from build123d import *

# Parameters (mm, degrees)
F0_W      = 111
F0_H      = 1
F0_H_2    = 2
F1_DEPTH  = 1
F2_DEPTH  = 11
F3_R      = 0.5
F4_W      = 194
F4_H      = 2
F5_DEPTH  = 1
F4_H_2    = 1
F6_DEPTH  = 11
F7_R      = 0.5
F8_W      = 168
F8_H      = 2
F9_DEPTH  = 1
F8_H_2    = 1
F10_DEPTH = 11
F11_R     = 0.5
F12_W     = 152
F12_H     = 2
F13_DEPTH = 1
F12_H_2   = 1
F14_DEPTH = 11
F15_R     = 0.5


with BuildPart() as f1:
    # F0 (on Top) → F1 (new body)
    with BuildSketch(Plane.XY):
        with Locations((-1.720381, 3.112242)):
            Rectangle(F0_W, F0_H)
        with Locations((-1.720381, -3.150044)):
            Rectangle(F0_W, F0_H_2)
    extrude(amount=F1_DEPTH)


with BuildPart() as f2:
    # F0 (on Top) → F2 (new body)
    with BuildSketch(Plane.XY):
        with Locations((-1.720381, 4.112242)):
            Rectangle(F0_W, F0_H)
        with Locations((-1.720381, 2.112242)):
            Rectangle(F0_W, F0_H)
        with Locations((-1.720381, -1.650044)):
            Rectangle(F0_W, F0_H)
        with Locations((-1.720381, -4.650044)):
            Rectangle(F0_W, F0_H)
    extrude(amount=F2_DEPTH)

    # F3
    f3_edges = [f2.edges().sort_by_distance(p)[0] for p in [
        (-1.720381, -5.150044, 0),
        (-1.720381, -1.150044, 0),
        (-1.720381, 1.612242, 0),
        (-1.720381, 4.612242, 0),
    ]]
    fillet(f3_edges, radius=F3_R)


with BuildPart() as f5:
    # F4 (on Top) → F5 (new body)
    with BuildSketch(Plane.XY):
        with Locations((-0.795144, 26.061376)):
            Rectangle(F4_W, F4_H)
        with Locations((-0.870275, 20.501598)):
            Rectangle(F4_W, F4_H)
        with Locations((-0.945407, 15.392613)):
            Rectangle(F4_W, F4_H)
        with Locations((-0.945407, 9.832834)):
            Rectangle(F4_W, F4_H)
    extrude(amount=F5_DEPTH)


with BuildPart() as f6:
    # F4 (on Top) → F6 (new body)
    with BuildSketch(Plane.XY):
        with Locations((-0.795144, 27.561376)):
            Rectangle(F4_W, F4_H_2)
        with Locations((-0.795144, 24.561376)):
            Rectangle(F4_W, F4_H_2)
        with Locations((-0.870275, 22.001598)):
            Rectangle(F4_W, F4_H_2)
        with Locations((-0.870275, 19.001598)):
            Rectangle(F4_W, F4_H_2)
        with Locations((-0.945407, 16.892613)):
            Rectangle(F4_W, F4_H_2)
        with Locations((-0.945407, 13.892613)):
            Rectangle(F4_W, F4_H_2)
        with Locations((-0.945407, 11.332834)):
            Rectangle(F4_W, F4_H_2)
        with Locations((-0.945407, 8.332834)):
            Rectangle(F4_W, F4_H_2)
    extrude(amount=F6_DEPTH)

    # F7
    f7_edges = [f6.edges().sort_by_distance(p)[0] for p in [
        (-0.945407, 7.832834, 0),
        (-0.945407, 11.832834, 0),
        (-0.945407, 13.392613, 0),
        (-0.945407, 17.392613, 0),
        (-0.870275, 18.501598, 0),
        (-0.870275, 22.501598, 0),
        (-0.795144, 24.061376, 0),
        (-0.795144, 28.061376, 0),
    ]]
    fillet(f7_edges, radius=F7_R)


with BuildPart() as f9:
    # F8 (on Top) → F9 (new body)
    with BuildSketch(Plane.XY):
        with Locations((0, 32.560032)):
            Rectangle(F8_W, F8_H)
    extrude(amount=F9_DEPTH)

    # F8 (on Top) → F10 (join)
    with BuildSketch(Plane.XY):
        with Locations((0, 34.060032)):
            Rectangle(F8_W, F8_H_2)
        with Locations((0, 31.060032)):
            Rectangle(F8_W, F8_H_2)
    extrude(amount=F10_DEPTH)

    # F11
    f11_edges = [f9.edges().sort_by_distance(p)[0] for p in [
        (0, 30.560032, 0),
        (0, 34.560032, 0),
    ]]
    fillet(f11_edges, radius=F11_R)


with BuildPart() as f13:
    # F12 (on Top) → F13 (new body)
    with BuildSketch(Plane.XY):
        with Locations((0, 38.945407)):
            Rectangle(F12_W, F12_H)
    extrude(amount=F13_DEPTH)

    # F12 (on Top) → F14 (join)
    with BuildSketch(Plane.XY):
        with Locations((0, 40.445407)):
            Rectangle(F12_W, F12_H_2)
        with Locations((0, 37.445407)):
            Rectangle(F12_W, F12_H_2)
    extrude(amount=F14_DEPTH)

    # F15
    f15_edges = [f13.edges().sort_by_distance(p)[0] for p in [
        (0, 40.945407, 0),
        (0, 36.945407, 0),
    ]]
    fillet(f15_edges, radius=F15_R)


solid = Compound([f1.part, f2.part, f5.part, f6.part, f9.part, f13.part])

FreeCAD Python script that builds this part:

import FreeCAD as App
import Part
import Sketcher


def edges_at(feature, points):
    """Names of the edges that pass closest to the given points."""
    edges = feature.Shape.Edges
    near = lambda p: min(range(len(edges)), key=lambda i: edges[i].distToShape(Part.Vertex(*p))[0])
    return sorted({f"Edge{near(p) + 1}" for p in points})

doc = App.newDocument("Part")
body = doc.addObject("PartDesign::Body", "Body")
body.AllowCompound = True

# Sketch on XY plane
sketch1 = body.newObject("Sketcher::SketchObject", "Sketch")
sketch1.AttachmentSupport = (doc.getObject("XY_Plane"), [""])
sketch1.MapMode = "FlatFace"
sketch1.addGeometry(Part.LineSegment(App.Vector(-57.2, 3.6, 0), App.Vector(-57.2, 2.6, 0)), False)
sketch1.addGeometry(Part.LineSegment(App.Vector(-57.2, 2.6, 0), App.Vector(53.8, 2.6, 0)), False)
sketch1.addGeometry(Part.LineSegment(App.Vector(53.8, 2.6, 0), App.Vector(53.8, 3.6, 0)), False)
sketch1.addGeometry(Part.LineSegment(App.Vector(53.8, 3.6, 0), App.Vector(-57.2, 3.6, 0)), False)
sketch1.addGeometry(Part.LineSegment(App.Vector(-57.2, -2.2, 0), App.Vector(-57.2, -4.2, 0)), False)
sketch1.addGeometry(Part.LineSegment(App.Vector(-57.2, -4.2, 0), App.Vector(53.8, -4.2, 0)), False)
sketch1.addGeometry(Part.LineSegment(App.Vector(53.8, -4.2, 0), App.Vector(53.8, -2.2, 0)), False)
sketch1.addGeometry(Part.LineSegment(App.Vector(53.8, -2.2, 0), App.Vector(-57.2, -2.2, 0)), False)
sketch1.addConstraint(Sketcher.Constraint("Coincident", 0, 2, 1, 1))
sketch1.addConstraint(Sketcher.Constraint("Coincident", 1, 2, 2, 1))
sketch1.addConstraint(Sketcher.Constraint("Coincident", 2, 2, 3, 1))
sketch1.addConstraint(Sketcher.Constraint("Coincident", 3, 2, 0, 1))
sketch1.addConstraint(Sketcher.Constraint("Coincident", 4, 2, 5, 1))
sketch1.addConstraint(Sketcher.Constraint("Coincident", 5, 2, 6, 1))
sketch1.addConstraint(Sketcher.Constraint("Coincident", 6, 2, 7, 1))
sketch1.addConstraint(Sketcher.Constraint("Coincident", 7, 2, 4, 1))
sketch1.addConstraint(Sketcher.Constraint("Vertical", 0))
sketch1.addConstraint(Sketcher.Constraint("Horizontal", 1))
sketch1.addConstraint(Sketcher.Constraint("Vertical", 2))
sketch1.addConstraint(Sketcher.Constraint("Horizontal", 3))
sketch1.addConstraint(Sketcher.Constraint("Vertical", 4))
sketch1.addConstraint(Sketcher.Constraint("Horizontal", 5))
sketch1.addConstraint(Sketcher.Constraint("Vertical", 6))
sketch1.addConstraint(Sketcher.Constraint("Horizontal", 7))
sketch1.addConstraint(Sketcher.Constraint("Vertical", 3, 2, 4, 2))
sketch1.addConstraint(Sketcher.Constraint("Vertical", 2, 2, 5, 2))
sketch1.addConstraint(Sketcher.Constraint("DistanceX", 1, 1, 1, 2, 111.0))
sketch1.addConstraint(Sketcher.Constraint("DistanceY", 0, 2, 0, 1, 1.0))
sketch1.addConstraint(Sketcher.Constraint("DistanceY", 4, 2, 4, 1, 2.0))
sketch1.addConstraint(Sketcher.Constraint("DistanceX", 0, 2, -1, 1, 57.220381))
sketch1.addConstraint(Sketcher.Constraint("DistanceY", -1, 1, 0, 2, 2.612242))
sketch1.addConstraint(Sketcher.Constraint("DistanceY", 4, 2, -1, 1, 4.150044))
pad1 = body.newObject("PartDesign::Pad", "Pad")
pad1.Profile = sketch1
pad1.Length = 1
body2 = doc.addObject("PartDesign::Body", "Body001")
body2.AllowCompound = True

# Sketch on XY plane
sketch2 = body2.newObject("Sketcher::SketchObject", "Sketch001")
sketch2.AttachmentSupport = (doc.getObject("XY_Plane001"), [""])
sketch2.MapMode = "FlatFace"
sketch2.addGeometry(Part.LineSegment(App.Vector(-57.2, 4.6, 0), App.Vector(-57.2, 3.6, 0)), False)
sketch2.addGeometry(Part.LineSegment(App.Vector(-57.2, 3.6, 0), App.Vector(53.8, 3.6, 0)), False)
sketch2.addGeometry(Part.LineSegment(App.Vector(53.8, 3.6, 0), App.Vector(53.8, 4.6, 0)), False)
sketch2.addGeometry(Part.LineSegment(App.Vector(53.8, 4.6, 0), App.Vector(-57.2, 4.6, 0)), False)
sketch2.addGeometry(Part.LineSegment(App.Vector(-57.2, 2.6, 0), App.Vector(-57.2, 1.6, 0)), False)
sketch2.addGeometry(Part.LineSegment(App.Vector(-57.2, 1.6, 0), App.Vector(53.8, 1.6, 0)), False)
sketch2.addGeometry(Part.LineSegment(App.Vector(53.8, 1.6, 0), App.Vector(53.8, 2.6, 0)), False)
sketch2.addGeometry(Part.LineSegment(App.Vector(53.8, 2.6, 0), App.Vector(-57.2, 2.6, 0)), False)
sketch2.addGeometry(Part.LineSegment(App.Vector(-57.2, -1.2, 0), App.Vector(-57.2, -2.2, 0)), False)
sketch2.addGeometry(Part.LineSegment(App.Vector(-57.2, -2.2, 0), App.Vector(53.8, -2.2, 0)), False)
sketch2.addGeometry(Part.LineSegment(App.Vector(53.8, -2.2, 0), App.Vector(53.8, -1.2, 0)), False)
sketch2.addGeometry(Part.LineSegment(App.Vector(53.8, -1.2, 0), App.Vector(-57.2, -1.2, 0)), False)
sketch2.addGeometry(Part.LineSegment(App.Vector(-57.2, -4.2, 0), App.Vector(-57.2, -5.2, 0)), False)
sketch2.addGeometry(Part.LineSegment(App.Vector(-57.2, -5.2, 0), App.Vector(53.8, -5.2, 0)), False)
sketch2.addGeometry(Part.LineSegment(App.Vector(53.8, -5.2, 0), App.Vector(53.8, -4.2, 0)), False)
sketch2.addGeometry(Part.LineSegment(App.Vector(53.8, -4.2, 0), App.Vector(-57.2, -4.2, 0)), False)
sketch2.addConstraint(Sketcher.Constraint("Coincident", 0, 2, 1, 1))
sketch2.addConstraint(Sketcher.Constraint("Coincident", 1, 2, 2, 1))
sketch2.addConstraint(Sketcher.Constraint("Coincident", 2, 2, 3, 1))
sketch2.addConstraint(Sketcher.Constraint("Coincident", 3, 2, 0, 1))
sketch2.addConstraint(Sketcher.Constraint("Coincident", 4, 2, 5, 1))
sketch2.addConstraint(Sketcher.Constraint("Coincident", 5, 2, 6, 1))
sketch2.addConstraint(Sketcher.Constraint("Coincident", 6, 2, 7, 1))
sketch2.addConstraint(Sketcher.Constraint("Coincident", 7, 2, 4, 1))
sketch2.addConstraint(Sketcher.Constraint("Coincident", 8, 2, 9, 1))
sketch2.addConstraint(Sketcher.Constraint("Coincident", 9, 2, 10, 1))
sketch2.addConstraint(Sketcher.Constraint("Coincident", 10, 2, 11, 1))
sketch2.addConstraint(Sketcher.Constraint("Coincident", 11, 2, 8, 1))
sketch2.addConstraint(Sketcher.Constraint("Coincident", 12, 2, 13, 1))
sketch2.addConstraint(Sketcher.Constraint("Coincident", 13, 2, 14, 1))
sketch2.addConstraint(Sketcher.Constraint("Coincident", 14, 2, 15, 1))
sketch2.addConstraint(Sketcher.Constraint("Coincident", 15, 2, 12, 1))
sketch2.addConstraint(Sketcher.Constraint("Vertical", 0))
sketch2.addConstraint(Sketcher.Constraint("Horizontal", 1))
sketch2.addConstraint(Sketcher.Constraint("Vertical", 2))
sketch2.addConstraint(Sketcher.Constraint("Horizontal", 3))
sketch2.addConstraint(Sketcher.Constraint("Vertical", 4))
sketch2.addConstraint(Sketcher.Constraint("Horizontal", 5))
sketch2.addConstraint(Sketcher.Constraint("Vertical", 6))
sketch2.addConstraint(Sketcher.Constraint("Horizontal", 7))
sketch2.addConstraint(Sketcher.Constraint("Vertical", 8))
sketch2.addConstraint(Sketcher.Constraint("Horizontal", 9))
sketch2.addConstraint(Sketcher.Constraint("Vertical", 10))
sketch2.addConstraint(Sketcher.Constraint("Horizontal", 11))
sketch2.addConstraint(Sketcher.Constraint("Vertical", 12))
sketch2.addConstraint(Sketcher.Constraint("Horizontal", 13))
sketch2.addConstraint(Sketcher.Constraint("Vertical", 14))
sketch2.addConstraint(Sketcher.Constraint("Horizontal", 15))
sketch2.addConstraint(Sketcher.Constraint("Vertical", 3, 2, 4, 2))
sketch2.addConstraint(Sketcher.Constraint("Vertical", 2, 2, 5, 2))
sketch2.addConstraint(Sketcher.Constraint("Vertical", 7, 2, 8, 2))
sketch2.addConstraint(Sketcher.Constraint("Vertical", 6, 2, 9, 2))
sketch2.addConstraint(Sketcher.Constraint("Vertical", 11, 2, 12, 2))
sketch2.addConstraint(Sketcher.Constraint("Vertical", 10, 2, 13, 2))
sketch2.addConstraint(Sketcher.Constraint("Equal", 2, 4))
sketch2.addConstraint(Sketcher.Constraint("Equal", 6, 8))
sketch2.addConstraint(Sketcher.Constraint("Equal", 10, 12))
sketch2.addConstraint(Sketcher.Constraint("DistanceX", 1, 1, 1, 2, 111.0))
sketch2.addConstraint(Sketcher.Constraint("DistanceY", 0, 2, 0, 1, 1.0))
sketch2.addConstraint(Sketcher.Constraint("DistanceY", 4, 2, 0, 2, 2.0))
sketch2.addConstraint(Sketcher.Constraint("DistanceY", 12, 2, 8, 2, 3.0))
sketch2.addConstraint(Sketcher.Constraint("DistanceX", 0, 2, -1, 1, 57.220381))
sketch2.addConstraint(Sketcher.Constraint("DistanceY", -1, 1, 0, 2, 3.612242))
sketch2.addConstraint(Sketcher.Constraint("DistanceY", 8, 2, -1, 1, 2.150044))
pad2 = body2.newObject("PartDesign::Pad", "Pad001")
pad2.Profile = sketch2
pad2.Length = 11
doc.recompute()

fillet = body2.newObject("PartDesign::Fillet", "Fillet")
fillet.Base = (pad2, edges_at(pad2, [
    (-1.72, -5.15, 0),
    (-1.72, -1.15, 0),
    (-1.72, 1.612, 0),
    (-1.72, 4.612, 0),
]))
fillet.Radius = 0.5
body3 = doc.addObject("PartDesign::Body", "Body002")
body3.AllowCompound = True

# Sketch on XY plane
sketch3 = body3.newObject("Sketcher::SketchObject", "Sketch002")
sketch3.AttachmentSupport = (doc.getObject("XY_Plane002"), [""])
sketch3.MapMode = "FlatFace"
sketch3.addGeometry(Part.LineSegment(App.Vector(-97.8, 27.1, 0), App.Vector(-97.8, 25.1, 0)), False)
sketch3.addGeometry(Part.LineSegment(App.Vector(-97.8, 25.1, 0), App.Vector(96.2, 25.1, 0)), False)
sketch3.addGeometry(Part.LineSegment(App.Vector(96.2, 25.1, 0), App.Vector(96.2, 27.1, 0)), False)
sketch3.addGeometry(Part.LineSegment(App.Vector(96.2, 27.1, 0), App.Vector(-97.8, 27.1, 0)), False)
sketch3.addGeometry(Part.LineSegment(App.Vector(-97.9, 21.5, 0), App.Vector(-97.9, 19.5, 0)), False)
sketch3.addGeometry(Part.LineSegment(App.Vector(-97.9, 19.5, 0), App.Vector(96.1, 19.5, 0)), False)
sketch3.addGeometry(Part.LineSegment(App.Vector(96.1, 19.5, 0), App.Vector(96.1, 21.5, 0)), False)
sketch3.addGeometry(Part.LineSegment(App.Vector(96.1, 21.5, 0), App.Vector(-97.9, 21.5, 0)), False)
sketch3.addGeometry(Part.LineSegment(App.Vector(-97.9, 16.4, 0), App.Vector(-97.9, 14.4, 0)), False)
sketch3.addGeometry(Part.LineSegment(App.Vector(-97.9, 14.4, 0), App.Vector(96.1, 14.4, 0)), False)
sketch3.addGeometry(Part.LineSegment(App.Vector(96.1, 14.4, 0), App.Vector(96.1, 16.4, 0)), False)
sketch3.addGeometry(Part.LineSegment(App.Vector(96.1, 16.4, 0), App.Vector(-97.9, 16.4, 0)), False)
sketch3.addGeometry(Part.LineSegment(App.Vector(-97.9, 10.8, 0), App.Vector(-97.9, 8.8, 0)), False)
sketch3.addGeometry(Part.LineSegment(App.Vector(-97.9, 8.8, 0), App.Vector(96.1, 8.8, 0)), False)
sketch3.addGeometry(Part.LineSegment(App.Vector(96.1, 8.8, 0), App.Vector(96.1, 10.8, 0)), False)
sketch3.addGeometry(Part.LineSegment(App.Vector(96.1, 10.8, 0), App.Vector(-97.9, 10.8, 0)), False)
sketch3.addConstraint(Sketcher.Constraint("Coincident", 0, 2, 1, 1))
sketch3.addConstraint(Sketcher.Constraint("Coincident", 1, 2, 2, 1))
sketch3.addConstraint(Sketcher.Constraint("Coincident", 2, 2, 3, 1))
sketch3.addConstraint(Sketcher.Constraint("Coincident", 3, 2, 0, 1))
sketch3.addConstraint(Sketcher.Constraint("Coincident", 4, 2, 5, 1))
sketch3.addConstraint(Sketcher.Constraint("Coincident", 5, 2, 6, 1))
sketch3.addConstraint(Sketcher.Constraint("Coincident", 6, 2, 7, 1))
sketch3.addConstraint(Sketcher.Constraint("Coincident", 7, 2, 4, 1))
sketch3.addConstraint(Sketcher.Constraint("Coincident", 8, 2, 9, 1))
sketch3.addConstraint(Sketcher.Constraint("Coincident", 9, 2, 10, 1))
sketch3.addConstraint(Sketcher.Constraint("Coincident", 10, 2, 11, 1))
sketch3.addConstraint(Sketcher.Constraint("Coincident", 11, 2, 8, 1))
sketch3.addConstraint(Sketcher.Constraint("Coincident", 12, 2, 13, 1))
sketch3.addConstraint(Sketcher.Constraint("Coincident", 13, 2, 14, 1))
sketch3.addConstraint(Sketcher.Constraint("Coincident", 14, 2, 15, 1))
sketch3.addConstraint(Sketcher.Constraint("Coincident", 15, 2, 12, 1))
sketch3.addConstraint(Sketcher.Constraint("Vertical", 0))
sketch3.addConstraint(Sketcher.Constraint("Horizontal", 1))
sketch3.addConstraint(Sketcher.Constraint("Vertical", 2))
sketch3.addConstraint(Sketcher.Constraint("Horizontal", 3))
sketch3.addConstraint(Sketcher.Constraint("Vertical", 4))
sketch3.addConstraint(Sketcher.Constraint("Horizontal", 5))
sketch3.addConstraint(Sketcher.Constraint("Vertical", 6))
sketch3.addConstraint(Sketcher.Constraint("Horizontal", 7))
sketch3.addConstraint(Sketcher.Constraint("Vertical", 8))
sketch3.addConstraint(Sketcher.Constraint("Horizontal", 9))
sketch3.addConstraint(Sketcher.Constraint("Vertical", 10))
sketch3.addConstraint(Sketcher.Constraint("Horizontal", 11))
sketch3.addConstraint(Sketcher.Constraint("Vertical", 12))
sketch3.addConstraint(Sketcher.Constraint("Horizontal", 13))
sketch3.addConstraint(Sketcher.Constraint("Vertical", 14))
sketch3.addConstraint(Sketcher.Constraint("Horizontal", 15))
sketch3.addConstraint(Sketcher.Constraint("Vertical", 11, 2, 12, 2))
sketch3.addConstraint(Sketcher.Constraint("Vertical", 10, 2, 13, 2))
sketch3.addConstraint(Sketcher.Constraint("Equal", 3, 5))
sketch3.addConstraint(Sketcher.Constraint("Equal", 7, 9))
sketch3.addConstraint(Sketcher.Constraint("Equal", 2, 4))
sketch3.addConstraint(Sketcher.Constraint("Equal", 6, 8))
sketch3.addConstraint(Sketcher.Constraint("Equal", 10, 12))
sketch3.addConstraint(Sketcher.Constraint("DistanceX", 1, 1, 1, 2, 194.0))
sketch3.addConstraint(Sketcher.Constraint("DistanceY", 0, 2, 0, 1, 2.0))
sketch3.addConstraint(Sketcher.Constraint("DistanceY", -1, 1, 4, 2, 19.501598))
sketch3.addConstraint(Sketcher.Constraint("DistanceX", 4, 2, 0, 2, 0.075131))
sketch3.addConstraint(Sketcher.Constraint("DistanceX", 8, 2, 4, 2, 0.075132))
sketch3.addConstraint(Sketcher.Constraint("DistanceY", 12, 2, 8, 2, 5.559779))
sketch3.addConstraint(Sketcher.Constraint("DistanceY", 12, 2, 0, 2, 16.228542))
sketch3.addConstraint(Sketcher.Constraint("DistanceX", 0, 2, -1, 1, 97.795144))
sketch3.addConstraint(Sketcher.Constraint("DistanceY", -1, 1, 0, 2, 25.061376))
pad3 = body3.newObject("PartDesign::Pad", "Pad002")
pad3.Profile = sketch3
pad3.Length = 1
body4 = doc.addObject("PartDesign::Body", "Body003")
body4.AllowCompound = True

# Sketch on XY plane
sketch4 = body4.newObject("Sketcher::SketchObject", "Sketch003")
sketch4.AttachmentSupport = (doc.getObject("XY_Plane003"), [""])
sketch4.MapMode = "FlatFace"
sketch4.addGeometry(Part.LineSegment(App.Vector(-97.8, 28.1, 0), App.Vector(-97.8, 27.1, 0)), False)
sketch4.addGeometry(Part.LineSegment(App.Vector(-97.8, 27.1, 0), App.Vector(96.2, 27.1, 0)), False)
sketch4.addGeometry(Part.LineSegment(App.Vector(96.2, 27.1, 0), App.Vector(96.2, 28.1, 0)), False)
sketch4.addGeometry(Part.LineSegment(App.Vector(96.2, 28.1, 0), App.Vector(-97.8, 28.1, 0)), False)
sketch4.addGeometry(Part.LineSegment(App.Vector(-97.8, 25.1, 0), App.Vector(-97.8, 24.1, 0)), False)
sketch4.addGeometry(Part.LineSegment(App.Vector(-97.8, 24.1, 0), App.Vector(96.2, 24.1, 0)), False)
sketch4.addGeometry(Part.LineSegment(App.Vector(96.2, 24.1, 0), App.Vector(96.2, 25.1, 0)), False)
sketch4.addGeometry(Part.LineSegment(App.Vector(96.2, 25.1, 0), App.Vector(-97.8, 25.1, 0)), False)
sketch4.addGeometry(Part.LineSegment(App.Vector(-97.9, 22.5, 0), App.Vector(-97.9, 21.5, 0)), False)
sketch4.addGeometry(Part.LineSegment(App.Vector(-97.9, 21.5, 0), App.Vector(96.1, 21.5, 0)), False)
sketch4.addGeometry(Part.LineSegment(App.Vector(96.1, 21.5, 0), App.Vector(96.1, 22.5, 0)), False)
sketch4.addGeometry(Part.LineSegment(App.Vector(96.1, 22.5, 0), App.Vector(-97.9, 22.5, 0)), False)
sketch4.addGeometry(Part.LineSegment(App.Vector(-97.9, 19.5, 0), App.Vector(-97.9, 18.5, 0)), False)
sketch4.addGeometry(Part.LineSegment(App.Vector(-97.9, 18.5, 0), App.Vector(96.1, 18.5, 0)), False)
sketch4.addGeometry(Part.LineSegment(App.Vector(96.1, 18.5, 0), App.Vector(96.1, 19.5, 0)), False)
sketch4.addGeometry(Part.LineSegment(App.Vector(96.1, 19.5, 0), App.Vector(-97.9, 19.5, 0)), False)
sketch4.addGeometry(Part.LineSegment(App.Vector(-97.9, 17.4, 0), App.Vector(-97.9, 16.4, 0)), False)
sketch4.addGeometry(Part.LineSegment(App.Vector(-97.9, 16.4, 0), App.Vector(96.1, 16.4, 0)), False)
sketch4.addGeometry(Part.LineSegment(App.Vector(96.1, 16.4, 0), App.Vector(96.1, 17.4, 0)), False)
sketch4.addGeometry(Part.LineSegment(App.Vector(96.1, 17.4, 0), App.Vector(-97.9, 17.4, 0)), False)
sketch4.addGeometry(Part.LineSegment(App.Vector(-97.9, 14.4, 0), App.Vector(-97.9, 13.4, 0)), False)
sketch4.addGeometry(Part.LineSegment(App.Vector(-97.9, 13.4, 0), App.Vector(96.1, 13.4, 0)), False)
sketch4.addGeometry(Part.LineSegment(App.Vector(96.1, 13.4, 0), App.Vector(96.1, 14.4, 0)), False)
sketch4.addGeometry(Part.LineSegment(App.Vector(96.1, 14.4, 0), App.Vector(-97.9, 14.4, 0)), False)
sketch4.addGeometry(Part.LineSegment(App.Vector(-97.9, 11.8, 0), App.Vector(-97.9, 10.8, 0)), False)
sketch4.addGeometry(Part.LineSegment(App.Vector(-97.9, 10.8, 0), App.Vector(96.1, 10.8, 0)), False)
sketch4.addGeometry(Part.LineSegment(App.Vector(96.1, 10.8, 0), App.Vector(96.1, 11.8, 0)), False)
sketch4.addGeometry(Part.LineSegment(App.Vector(96.1, 11.8, 0), App.Vector(-97.9, 11.8, 0)), False)
sketch4.addGeometry(Part.LineSegment(App.Vector(-97.9, 8.8, 0), App.Vector(-97.9, 7.8, 0)), False)
sketch4.addGeometry(Part.LineSegment(App.Vector(-97.9, 7.8, 0), App.Vector(96.1, 7.8, 0)), False)
sketch4.addGeometry(Part.LineSegment(App.Vector(96.1, 7.8, 0), App.Vector(96.1, 8.8, 0)), False)
sketch4.addGeometry(Part.LineSegment(App.Vector(96.1, 8.8, 0), App.Vector(-97.9, 8.8, 0)), False)
sketch4.addConstraint(Sketcher.Constraint("Coincident", 0, 2, 1, 1))
sketch4.addConstraint(Sketcher.Constraint("Coincident", 1, 2, 2, 1))
sketch4.addConstraint(Sketcher.Constraint("Coincident", 2, 2, 3, 1))
sketch4.addConstraint(Sketcher.Constraint("Coincident", 3, 2, 0, 1))
sketch4.addConstraint(Sketcher.Constraint("Coincident", 4, 2, 5, 1))
sketch4.addConstraint(Sketcher.Constraint("Coincident", 5, 2, 6, 1))
sketch4.addConstraint(Sketcher.Constraint("Coincident", 6, 2, 7, 1))
sketch4.addConstraint(Sketcher.Constraint("Coincident", 7, 2, 4, 1))
sketch4.addConstraint(Sketcher.Constraint("Coincident", 8, 2, 9, 1))
sketch4.addConstraint(Sketcher.Constraint("Coincident", 9, 2, 10, 1))
sketch4.addConstraint(Sketcher.Constraint("Coincident", 10, 2, 11, 1))
sketch4.addConstraint(Sketcher.Constraint("Coincident", 11, 2, 8, 1))
sketch4.addConstraint(Sketcher.Constraint("Coincident", 12, 2, 13, 1))
sketch4.addConstraint(Sketcher.Constraint("Coincident", 13, 2, 14, 1))
sketch4.addConstraint(Sketcher.Constraint("Coincident", 14, 2, 15, 1))
sketch4.addConstraint(Sketcher.Constraint("Coincident", 15, 2, 12, 1))
sketch4.addConstraint(Sketcher.Constraint("Coincident", 16, 2, 17, 1))
sketch4.addConstraint(Sketcher.Constraint("Coincident", 17, 2, 18, 1))
sketch4.addConstraint(Sketcher.Constraint("Coincident", 18, 2, 19, 1))
sketch4.addConstraint(Sketcher.Constraint("Coincident", 19, 2, 16, 1))
sketch4.addConstraint(Sketcher.Constraint("Coincident", 20, 2, 21, 1))
sketch4.addConstraint(Sketcher.Constraint("Coincident", 21, 2, 22, 1))
sketch4.addConstraint(Sketcher.Constraint("Coincident", 22, 2, 23, 1))
sketch4.addConstraint(Sketcher.Constraint("Coincident", 23, 2, 20, 1))
sketch4.addConstraint(Sketcher.Constraint("Coincident", 24, 2, 25, 1))
sketch4.addConstraint(Sketcher.Constraint("Coincident", 25, 2, 26, 1))
sketch4.addConstraint(Sketcher.Constraint("Coincident", 26, 2, 27, 1))
sketch4.addConstraint(Sketcher.Constraint("Coincident", 27, 2, 24, 1))
sketch4.addConstraint(Sketcher.Constraint("Coincident", 28, 2, 29, 1))
sketch4.addConstraint(Sketcher.Constraint("Coincident", 29, 2, 30, 1))
sketch4.addConstraint(Sketcher.Constraint("Coincident", 30, 2, 31, 1))
sketch4.addConstraint(Sketcher.Constraint("Coincident", 31, 2, 28, 1))
sketch4.addConstraint(Sketcher.Constraint("Vertical", 0))
sketch4.addConstraint(Sketcher.Constraint("Horizontal", 1))
sketch4.addConstraint(Sketcher.Constraint("Vertical", 2))
sketch4.addConstraint(Sketcher.Constraint("Horizontal", 3))
sketch4.addConstraint(Sketcher.Constraint("Vertical", 4))
sketch4.addConstraint(Sketcher.Constraint("Horizontal", 5))
sketch4.addConstraint(Sketcher.Constraint("Vertical", 6))
sketch4.addConstraint(Sketcher.Constraint("Horizontal", 7))
sketch4.addConstraint(Sketcher.Constraint("Vertical", 8))
sketch4.addConstraint(Sketcher.Constraint("Horizontal", 9))
sketch4.addConstraint(Sketcher.Constraint("Vertical", 10))
sketch4.addConstraint(Sketcher.Constraint("Horizontal", 11))
sketch4.addConstraint(Sketcher.Constraint("Vertical", 12))
sketch4.addConstraint(Sketcher.Constraint("Horizontal", 13))
sketch4.addConstraint(Sketcher.Constraint("Vertical", 14))
sketch4.addConstraint(Sketcher.Constraint("Horizontal", 15))
sketch4.addConstraint(Sketcher.Constraint("Vertical", 16))
sketch4.addConstraint(Sketcher.Constraint("Horizontal", 17))
sketch4.addConstraint(Sketcher.Constraint("Vertical", 18))
sketch4.addConstraint(Sketcher.Constraint("Horizontal", 19))
sketch4.addConstraint(Sketcher.Constraint("Vertical", 20))
sketch4.addConstraint(Sketcher.Constraint("Horizontal", 21))
sketch4.addConstraint(Sketcher.Constraint("Vertical", 22))
sketch4.addConstraint(Sketcher.Constraint("Horizontal", 23))
sketch4.addConstraint(Sketcher.Constraint("Vertical", 24))
sketch4.addConstraint(Sketcher.Constraint("Horizontal", 25))
sketch4.addConstraint(Sketcher.Constraint("Vertical", 26))
sketch4.addConstraint(Sketcher.Constraint("Horizontal", 27))
sketch4.addConstraint(Sketcher.Constraint("Vertical", 28))
sketch4.addConstraint(Sketcher.Constraint("Horizontal", 29))
sketch4.addConstraint(Sketcher.Constraint("Vertical", 30))
sketch4.addConstraint(Sketcher.Constraint("Horizontal", 31))
sketch4.addConstraint(Sketcher.Constraint("Vertical", 3, 2, 4, 2))
sketch4.addConstraint(Sketcher.Constraint("Vertical", 2, 2, 5, 2))
sketch4.addConstraint(Sketcher.Constraint("Vertical", 11, 2, 12, 2))
sketch4.addConstraint(Sketcher.Constraint("Vertical", 10, 2, 13, 2))
sketch4.addConstraint(Sketcher.Constraint("Vertical", 19, 2, 20, 2))
sketch4.addConstraint(Sketcher.Constraint("Vertical", 18, 2, 21, 2))
sketch4.addConstraint(Sketcher.Constraint("Vertical", 23, 2, 24, 2))
sketch4.addConstraint(Sketcher.Constraint("Vertical", 22, 2, 25, 2))
sketch4.addConstraint(Sketcher.Constraint("Vertical", 27, 2, 28, 2))
sketch4.addConstraint(Sketcher.Constraint("Vertical", 26, 2, 29, 2))
sketch4.addConstraint(Sketcher.Constraint("Equal", 7, 9))
sketch4.addConstraint(Sketcher.Constraint("Equal", 15, 17))
sketch4.addConstraint(Sketcher.Constraint("Equal", 2, 4))
sketch4.addConstraint(Sketcher.Constraint("Equal", 6, 8))
sketch4.addConstraint(Sketcher.Constraint("Equal", 10, 12))
sketch4.addConstraint(Sketcher.Constraint("Equal", 14, 16))
sketch4.addConstraint(Sketcher.Constraint("Equal", 18, 20))
sketch4.addConstraint(Sketcher.Constraint("Equal", 22, 24))
sketch4.addConstraint(Sketcher.Constraint("Equal", 26, 28))
sketch4.addConstraint(Sketcher.Constraint("DistanceX", 1, 1, 1, 2, 194.0))
sketch4.addConstraint(Sketcher.Constraint("DistanceY", 0, 2, 0, 1, 1.0))
sketch4.addConstraint(Sketcher.Constraint("DistanceY", 4, 2, 0, 2, 3.0))
sketch4.addConstraint(Sketcher.Constraint("DistanceY", 12, 2, 8, 2, 3.0))
sketch4.addConstraint(Sketcher.Constraint("DistanceY", 20, 2, 16, 2, 3.0))
sketch4.addConstraint(Sketcher.Constraint("DistanceY", 28, 2, 24, 2, 3.0))
sketch4.addConstraint(Sketcher.Constraint("DistanceY", -1, 1, 8, 2, 21.501598))
sketch4.addConstraint(Sketcher.Constraint("DistanceX", 8, 2, 4, 2, 0.075131))
sketch4.addConstraint(Sketcher.Constraint("DistanceX", 16, 2, 12, 2, 0.075132))
sketch4.addConstraint(Sketcher.Constraint("DistanceY", 24, 2, 20, 2, 2.559779))
sketch4.addConstraint(Sketcher.Constraint("DistanceX", 0, 2, -1, 1, 97.795144))
sketch4.addConstraint(Sketcher.Constraint("DistanceY", -1, 1, 0, 2, 27.061376))
sketch4.addConstraint(Sketcher.Constraint("DistanceY", -1, 1, 16, 2, 16.392613))
pad4 = body4.newObject("PartDesign::Pad", "Pad003")
pad4.Profile = sketch4
pad4.Length = 11
doc.recompute()

fillet2 = body4.newObject("PartDesign::Fillet", "Fillet001")
fillet2.Base = (pad4, edges_at(pad4, [
    (-0.945, 7.833, 0),
    (-0.945, 11.833, 0),
    (-0.945, 13.393, 0),
    (-0.945, 17.393, 0),
    (-0.87, 18.502, 0),
    (-0.87, 22.502, 0),
    (-0.795, 24.061, 0),
    (-0.795, 28.061, 0),
]))
fillet2.Radius = 0.5
body5 = doc.addObject("PartDesign::Body", "Body004")

# Sketch on XY plane
sketch5 = body5.newObject("Sketcher::SketchObject", "Sketch004")
sketch5.AttachmentSupport = (doc.getObject("XY_Plane004"), [""])
sketch5.MapMode = "FlatFace"
sketch5.addGeometry(Part.LineSegment(App.Vector(-84, 33.6, 0), App.Vector(-84, 31.6, 0)), False)
sketch5.addGeometry(Part.LineSegment(App.Vector(-84, 31.6, 0), App.Vector(84, 31.6, 0)), False)
sketch5.addGeometry(Part.LineSegment(App.Vector(84, 31.6, 0), App.Vector(84, 33.6, 0)), False)
sketch5.addGeometry(Part.LineSegment(App.Vector(84, 33.6, 0), App.Vector(-84, 33.6, 0)), False)
sketch5.addConstraint(Sketcher.Constraint("Coincident", 0, 2, 1, 1))
sketch5.addConstraint(Sketcher.Constraint("Coincident", 1, 2, 2, 1))
sketch5.addConstraint(Sketcher.Constraint("Coincident", 2, 2, 3, 1))
sketch5.addConstraint(Sketcher.Constraint("Coincident", 3, 2, 0, 1))
sketch5.addConstraint(Sketcher.Constraint("Vertical", 0))
sketch5.addConstraint(Sketcher.Constraint("Horizontal", 1))
sketch5.addConstraint(Sketcher.Constraint("Vertical", 2))
sketch5.addConstraint(Sketcher.Constraint("Horizontal", 3))
sketch5.addConstraint(Sketcher.Constraint("DistanceX", 1, 1, 1, 2, 168.0))
sketch5.addConstraint(Sketcher.Constraint("DistanceY", 0, 2, 0, 1, 2.0))
sketch5.addConstraint(Sketcher.Constraint("DistanceX", 0, 2, -1, 1, 84.0))
sketch5.addConstraint(Sketcher.Constraint("DistanceY", -1, 1, 0, 2, 31.560032))
pad5 = body5.newObject("PartDesign::Pad", "Pad004")
pad5.Profile = sketch5
pad5.Length = 1

# Sketch on XY plane
sketch6 = body5.newObject("Sketcher::SketchObject", "Sketch005")
sketch6.AttachmentSupport = (doc.getObject("XY_Plane004"), [""])
sketch6.MapMode = "FlatFace"
sketch6.addGeometry(Part.LineSegment(App.Vector(-84, 34.6, 0), App.Vector(-84, 33.6, 0)), False)
sketch6.addGeometry(Part.LineSegment(App.Vector(-84, 33.6, 0), App.Vector(84, 33.6, 0)), False)
sketch6.addGeometry(Part.LineSegment(App.Vector(84, 33.6, 0), App.Vector(84, 34.6, 0)), False)
sketch6.addGeometry(Part.LineSegment(App.Vector(84, 34.6, 0), App.Vector(-84, 34.6, 0)), False)
sketch6.addGeometry(Part.LineSegment(App.Vector(-84, 31.6, 0), App.Vector(-84, 30.6, 0)), False)
sketch6.addGeometry(Part.LineSegment(App.Vector(-84, 30.6, 0), App.Vector(84, 30.6, 0)), False)
sketch6.addGeometry(Part.LineSegment(App.Vector(84, 30.6, 0), App.Vector(84, 31.6, 0)), False)
sketch6.addGeometry(Part.LineSegment(App.Vector(84, 31.6, 0), App.Vector(-84, 31.6, 0)), False)
sketch6.addConstraint(Sketcher.Constraint("Coincident", 0, 2, 1, 1))
sketch6.addConstraint(Sketcher.Constraint("Coincident", 1, 2, 2, 1))
sketch6.addConstraint(Sketcher.Constraint("Coincident", 2, 2, 3, 1))
sketch6.addConstraint(Sketcher.Constraint("Coincident", 3, 2, 0, 1))
sketch6.addConstraint(Sketcher.Constraint("Coincident", 4, 2, 5, 1))
sketch6.addConstraint(Sketcher.Constraint("Coincident", 5, 2, 6, 1))
sketch6.addConstraint(Sketcher.Constraint("Coincident", 6, 2, 7, 1))
sketch6.addConstraint(Sketcher.Constraint("Coincident", 7, 2, 4, 1))
sketch6.addConstraint(Sketcher.Constraint("Vertical", 0))
sketch6.addConstraint(Sketcher.Constraint("Horizontal", 1))
sketch6.addConstraint(Sketcher.Constraint("Vertical", 2))
sketch6.addConstraint(Sketcher.Constraint("Horizontal", 3))
sketch6.addConstraint(Sketcher.Constraint("Vertical", 4))
sketch6.addConstraint(Sketcher.Constraint("Horizontal", 5))
sketch6.addConstraint(Sketcher.Constraint("Vertical", 6))
sketch6.addConstraint(Sketcher.Constraint("Horizontal", 7))
sketch6.addConstraint(Sketcher.Constraint("Vertical", 3, 2, 4, 2))
sketch6.addConstraint(Sketcher.Constraint("Vertical", 2, 2, 5, 2))
sketch6.addConstraint(Sketcher.Constraint("Equal", 2, 4))
sketch6.addConstraint(Sketcher.Constraint("DistanceX", 1, 1, 1, 2, 168.0))
sketch6.addConstraint(Sketcher.Constraint("DistanceY", 0, 2, 0, 1, 1.0))
sketch6.addConstraint(Sketcher.Constraint("DistanceX", 0, 2, -1, 1, 84.0))
sketch6.addConstraint(Sketcher.Constraint("DistanceY", 4, 2, 0, 2, 3.0))
sketch6.addConstraint(Sketcher.Constraint("DistanceY", -1, 1, 4, 2, 30.560032))
pad6 = body5.newObject("PartDesign::Pad", "Pad005")
pad6.Profile = sketch6
pad6.Length = 11
doc.recompute()

fillet3 = body5.newObject("PartDesign::Fillet", "Fillet002")
fillet3.Base = (pad6, edges_at(pad6, [(0, 30.56, 0), (0, 34.56, 0)]))
fillet3.Radius = 0.5
body6 = doc.addObject("PartDesign::Body", "Body005")

# Sketch on XY plane
sketch7 = body6.newObject("Sketcher::SketchObject", "Sketch006")
sketch7.AttachmentSupport = (doc.getObject("XY_Plane005"), [""])
sketch7.MapMode = "FlatFace"
sketch7.addGeometry(Part.LineSegment(App.Vector(-76, 39.9, 0), App.Vector(-76, 37.9, 0)), False)
sketch7.addGeometry(Part.LineSegment(App.Vector(-76, 37.9, 0), App.Vector(76, 37.9, 0)), False)
sketch7.addGeometry(Part.LineSegment(App.Vector(76, 37.9, 0), App.Vector(76, 39.9, 0)), False)
sketch7.addGeometry(Part.LineSegment(App.Vector(76, 39.9, 0), App.Vector(-76, 39.9, 0)), False)
sketch7.addConstraint(Sketcher.Constraint("Coincident", 0, 2, 1, 1))
sketch7.addConstraint(Sketcher.Constraint("Coincident", 1, 2, 2, 1))
sketch7.addConstraint(Sketcher.Constraint("Coincident", 2, 2, 3, 1))
sketch7.addConstraint(Sketcher.Constraint("Coincident", 3, 2, 0, 1))
sketch7.addConstraint(Sketcher.Constraint("Vertical", 0))
sketch7.addConstraint(Sketcher.Constraint("Horizontal", 1))
sketch7.addConstraint(Sketcher.Constraint("Vertical", 2))
sketch7.addConstraint(Sketcher.Constraint("Horizontal", 3))
sketch7.addConstraint(Sketcher.Constraint("DistanceX", 1, 1, 1, 2, 152.0))
sketch7.addConstraint(Sketcher.Constraint("DistanceY", 0, 2, 0, 1, 2.0))
sketch7.addConstraint(Sketcher.Constraint("DistanceX", 0, 2, -1, 1, 76.0))
sketch7.addConstraint(Sketcher.Constraint("DistanceY", -1, 1, 0, 2, 37.945407))
pad7 = body6.newObject("PartDesign::Pad", "Pad006")
pad7.Profile = sketch7
pad7.Length = 1

# Sketch on XY plane
sketch8 = body6.newObject("Sketcher::SketchObject", "Sketch007")
sketch8.AttachmentSupport = (doc.getObject("XY_Plane005"), [""])
sketch8.MapMode = "FlatFace"
sketch8.addGeometry(Part.LineSegment(App.Vector(-76, 40.9, 0), App.Vector(-76, 39.9, 0)), False)
sketch8.addGeometry(Part.LineSegment(App.Vector(-76, 39.9, 0), App.Vector(76, 39.9, 0)), False)
sketch8.addGeometry(Part.LineSegment(App.Vector(76, 39.9, 0), App.Vector(76, 40.9, 0)), False)
sketch8.addGeometry(Part.LineSegment(App.Vector(76, 40.9, 0), App.Vector(-76, 40.9, 0)), False)
sketch8.addGeometry(Part.LineSegment(App.Vector(-76, 37.9, 0), App.Vector(-76, 36.9, 0)), False)
sketch8.addGeometry(Part.LineSegment(App.Vector(-76, 36.9, 0), App.Vector(76, 36.9, 0)), False)
sketch8.addGeometry(Part.LineSegment(App.Vector(76, 36.9, 0), App.Vector(76, 37.9, 0)), False)
sketch8.addGeometry(Part.LineSegment(App.Vector(76, 37.9, 0), App.Vector(-76, 37.9, 0)), False)
sketch8.addConstraint(Sketcher.Constraint("Coincident", 0, 2, 1, 1))
sketch8.addConstraint(Sketcher.Constraint("Coincident", 1, 2, 2, 1))
sketch8.addConstraint(Sketcher.Constraint("Coincident", 2, 2, 3, 1))
sketch8.addConstraint(Sketcher.Constraint("Coincident", 3, 2, 0, 1))
sketch8.addConstraint(Sketcher.Constraint("Coincident", 4, 2, 5, 1))
sketch8.addConstraint(Sketcher.Constraint("Coincident", 5, 2, 6, 1))
sketch8.addConstraint(Sketcher.Constraint("Coincident", 6, 2, 7, 1))
sketch8.addConstraint(Sketcher.Constraint("Coincident", 7, 2, 4, 1))
sketch8.addConstraint(Sketcher.Constraint("Vertical", 0))
sketch8.addConstraint(Sketcher.Constraint("Horizontal", 1))
sketch8.addConstraint(Sketcher.Constraint("Vertical", 2))
sketch8.addConstraint(Sketcher.Constraint("Horizontal", 3))
sketch8.addConstraint(Sketcher.Constraint("Vertical", 4))
sketch8.addConstraint(Sketcher.Constraint("Horizontal", 5))
sketch8.addConstraint(Sketcher.Constraint("Vertical", 6))
sketch8.addConstraint(Sketcher.Constraint("Horizontal", 7))
sketch8.addConstraint(Sketcher.Constraint("Vertical", 3, 2, 4, 2))
sketch8.addConstraint(Sketcher.Constraint("Vertical", 2, 2, 5, 2))
sketch8.addConstraint(Sketcher.Constraint("Equal", 2, 4))
sketch8.addConstraint(Sketcher.Constraint("DistanceX", 1, 1, 1, 2, 152.0))
sketch8.addConstraint(Sketcher.Constraint("DistanceY", 0, 2, 0, 1, 1.0))
sketch8.addConstraint(Sketcher.Constraint("DistanceX", 0, 2, -1, 1, 76.0))
sketch8.addConstraint(Sketcher.Constraint("DistanceY", 4, 2, 0, 2, 3.0))
sketch8.addConstraint(Sketcher.Constraint("DistanceY", -1, 1, 0, 2, 39.945407))
pad8 = body6.newObject("PartDesign::Pad", "Pad007")
pad8.Profile = sketch8
pad8.Length = 11
doc.recompute()

fillet4 = body6.newObject("PartDesign::Fillet", "Fillet003")
fillet4.Base = (pad8, edges_at(pad8, [(0, 40.945, 0), (0, 36.945, 0)]))
fillet4.Radius = 0.5

doc.recompute()
